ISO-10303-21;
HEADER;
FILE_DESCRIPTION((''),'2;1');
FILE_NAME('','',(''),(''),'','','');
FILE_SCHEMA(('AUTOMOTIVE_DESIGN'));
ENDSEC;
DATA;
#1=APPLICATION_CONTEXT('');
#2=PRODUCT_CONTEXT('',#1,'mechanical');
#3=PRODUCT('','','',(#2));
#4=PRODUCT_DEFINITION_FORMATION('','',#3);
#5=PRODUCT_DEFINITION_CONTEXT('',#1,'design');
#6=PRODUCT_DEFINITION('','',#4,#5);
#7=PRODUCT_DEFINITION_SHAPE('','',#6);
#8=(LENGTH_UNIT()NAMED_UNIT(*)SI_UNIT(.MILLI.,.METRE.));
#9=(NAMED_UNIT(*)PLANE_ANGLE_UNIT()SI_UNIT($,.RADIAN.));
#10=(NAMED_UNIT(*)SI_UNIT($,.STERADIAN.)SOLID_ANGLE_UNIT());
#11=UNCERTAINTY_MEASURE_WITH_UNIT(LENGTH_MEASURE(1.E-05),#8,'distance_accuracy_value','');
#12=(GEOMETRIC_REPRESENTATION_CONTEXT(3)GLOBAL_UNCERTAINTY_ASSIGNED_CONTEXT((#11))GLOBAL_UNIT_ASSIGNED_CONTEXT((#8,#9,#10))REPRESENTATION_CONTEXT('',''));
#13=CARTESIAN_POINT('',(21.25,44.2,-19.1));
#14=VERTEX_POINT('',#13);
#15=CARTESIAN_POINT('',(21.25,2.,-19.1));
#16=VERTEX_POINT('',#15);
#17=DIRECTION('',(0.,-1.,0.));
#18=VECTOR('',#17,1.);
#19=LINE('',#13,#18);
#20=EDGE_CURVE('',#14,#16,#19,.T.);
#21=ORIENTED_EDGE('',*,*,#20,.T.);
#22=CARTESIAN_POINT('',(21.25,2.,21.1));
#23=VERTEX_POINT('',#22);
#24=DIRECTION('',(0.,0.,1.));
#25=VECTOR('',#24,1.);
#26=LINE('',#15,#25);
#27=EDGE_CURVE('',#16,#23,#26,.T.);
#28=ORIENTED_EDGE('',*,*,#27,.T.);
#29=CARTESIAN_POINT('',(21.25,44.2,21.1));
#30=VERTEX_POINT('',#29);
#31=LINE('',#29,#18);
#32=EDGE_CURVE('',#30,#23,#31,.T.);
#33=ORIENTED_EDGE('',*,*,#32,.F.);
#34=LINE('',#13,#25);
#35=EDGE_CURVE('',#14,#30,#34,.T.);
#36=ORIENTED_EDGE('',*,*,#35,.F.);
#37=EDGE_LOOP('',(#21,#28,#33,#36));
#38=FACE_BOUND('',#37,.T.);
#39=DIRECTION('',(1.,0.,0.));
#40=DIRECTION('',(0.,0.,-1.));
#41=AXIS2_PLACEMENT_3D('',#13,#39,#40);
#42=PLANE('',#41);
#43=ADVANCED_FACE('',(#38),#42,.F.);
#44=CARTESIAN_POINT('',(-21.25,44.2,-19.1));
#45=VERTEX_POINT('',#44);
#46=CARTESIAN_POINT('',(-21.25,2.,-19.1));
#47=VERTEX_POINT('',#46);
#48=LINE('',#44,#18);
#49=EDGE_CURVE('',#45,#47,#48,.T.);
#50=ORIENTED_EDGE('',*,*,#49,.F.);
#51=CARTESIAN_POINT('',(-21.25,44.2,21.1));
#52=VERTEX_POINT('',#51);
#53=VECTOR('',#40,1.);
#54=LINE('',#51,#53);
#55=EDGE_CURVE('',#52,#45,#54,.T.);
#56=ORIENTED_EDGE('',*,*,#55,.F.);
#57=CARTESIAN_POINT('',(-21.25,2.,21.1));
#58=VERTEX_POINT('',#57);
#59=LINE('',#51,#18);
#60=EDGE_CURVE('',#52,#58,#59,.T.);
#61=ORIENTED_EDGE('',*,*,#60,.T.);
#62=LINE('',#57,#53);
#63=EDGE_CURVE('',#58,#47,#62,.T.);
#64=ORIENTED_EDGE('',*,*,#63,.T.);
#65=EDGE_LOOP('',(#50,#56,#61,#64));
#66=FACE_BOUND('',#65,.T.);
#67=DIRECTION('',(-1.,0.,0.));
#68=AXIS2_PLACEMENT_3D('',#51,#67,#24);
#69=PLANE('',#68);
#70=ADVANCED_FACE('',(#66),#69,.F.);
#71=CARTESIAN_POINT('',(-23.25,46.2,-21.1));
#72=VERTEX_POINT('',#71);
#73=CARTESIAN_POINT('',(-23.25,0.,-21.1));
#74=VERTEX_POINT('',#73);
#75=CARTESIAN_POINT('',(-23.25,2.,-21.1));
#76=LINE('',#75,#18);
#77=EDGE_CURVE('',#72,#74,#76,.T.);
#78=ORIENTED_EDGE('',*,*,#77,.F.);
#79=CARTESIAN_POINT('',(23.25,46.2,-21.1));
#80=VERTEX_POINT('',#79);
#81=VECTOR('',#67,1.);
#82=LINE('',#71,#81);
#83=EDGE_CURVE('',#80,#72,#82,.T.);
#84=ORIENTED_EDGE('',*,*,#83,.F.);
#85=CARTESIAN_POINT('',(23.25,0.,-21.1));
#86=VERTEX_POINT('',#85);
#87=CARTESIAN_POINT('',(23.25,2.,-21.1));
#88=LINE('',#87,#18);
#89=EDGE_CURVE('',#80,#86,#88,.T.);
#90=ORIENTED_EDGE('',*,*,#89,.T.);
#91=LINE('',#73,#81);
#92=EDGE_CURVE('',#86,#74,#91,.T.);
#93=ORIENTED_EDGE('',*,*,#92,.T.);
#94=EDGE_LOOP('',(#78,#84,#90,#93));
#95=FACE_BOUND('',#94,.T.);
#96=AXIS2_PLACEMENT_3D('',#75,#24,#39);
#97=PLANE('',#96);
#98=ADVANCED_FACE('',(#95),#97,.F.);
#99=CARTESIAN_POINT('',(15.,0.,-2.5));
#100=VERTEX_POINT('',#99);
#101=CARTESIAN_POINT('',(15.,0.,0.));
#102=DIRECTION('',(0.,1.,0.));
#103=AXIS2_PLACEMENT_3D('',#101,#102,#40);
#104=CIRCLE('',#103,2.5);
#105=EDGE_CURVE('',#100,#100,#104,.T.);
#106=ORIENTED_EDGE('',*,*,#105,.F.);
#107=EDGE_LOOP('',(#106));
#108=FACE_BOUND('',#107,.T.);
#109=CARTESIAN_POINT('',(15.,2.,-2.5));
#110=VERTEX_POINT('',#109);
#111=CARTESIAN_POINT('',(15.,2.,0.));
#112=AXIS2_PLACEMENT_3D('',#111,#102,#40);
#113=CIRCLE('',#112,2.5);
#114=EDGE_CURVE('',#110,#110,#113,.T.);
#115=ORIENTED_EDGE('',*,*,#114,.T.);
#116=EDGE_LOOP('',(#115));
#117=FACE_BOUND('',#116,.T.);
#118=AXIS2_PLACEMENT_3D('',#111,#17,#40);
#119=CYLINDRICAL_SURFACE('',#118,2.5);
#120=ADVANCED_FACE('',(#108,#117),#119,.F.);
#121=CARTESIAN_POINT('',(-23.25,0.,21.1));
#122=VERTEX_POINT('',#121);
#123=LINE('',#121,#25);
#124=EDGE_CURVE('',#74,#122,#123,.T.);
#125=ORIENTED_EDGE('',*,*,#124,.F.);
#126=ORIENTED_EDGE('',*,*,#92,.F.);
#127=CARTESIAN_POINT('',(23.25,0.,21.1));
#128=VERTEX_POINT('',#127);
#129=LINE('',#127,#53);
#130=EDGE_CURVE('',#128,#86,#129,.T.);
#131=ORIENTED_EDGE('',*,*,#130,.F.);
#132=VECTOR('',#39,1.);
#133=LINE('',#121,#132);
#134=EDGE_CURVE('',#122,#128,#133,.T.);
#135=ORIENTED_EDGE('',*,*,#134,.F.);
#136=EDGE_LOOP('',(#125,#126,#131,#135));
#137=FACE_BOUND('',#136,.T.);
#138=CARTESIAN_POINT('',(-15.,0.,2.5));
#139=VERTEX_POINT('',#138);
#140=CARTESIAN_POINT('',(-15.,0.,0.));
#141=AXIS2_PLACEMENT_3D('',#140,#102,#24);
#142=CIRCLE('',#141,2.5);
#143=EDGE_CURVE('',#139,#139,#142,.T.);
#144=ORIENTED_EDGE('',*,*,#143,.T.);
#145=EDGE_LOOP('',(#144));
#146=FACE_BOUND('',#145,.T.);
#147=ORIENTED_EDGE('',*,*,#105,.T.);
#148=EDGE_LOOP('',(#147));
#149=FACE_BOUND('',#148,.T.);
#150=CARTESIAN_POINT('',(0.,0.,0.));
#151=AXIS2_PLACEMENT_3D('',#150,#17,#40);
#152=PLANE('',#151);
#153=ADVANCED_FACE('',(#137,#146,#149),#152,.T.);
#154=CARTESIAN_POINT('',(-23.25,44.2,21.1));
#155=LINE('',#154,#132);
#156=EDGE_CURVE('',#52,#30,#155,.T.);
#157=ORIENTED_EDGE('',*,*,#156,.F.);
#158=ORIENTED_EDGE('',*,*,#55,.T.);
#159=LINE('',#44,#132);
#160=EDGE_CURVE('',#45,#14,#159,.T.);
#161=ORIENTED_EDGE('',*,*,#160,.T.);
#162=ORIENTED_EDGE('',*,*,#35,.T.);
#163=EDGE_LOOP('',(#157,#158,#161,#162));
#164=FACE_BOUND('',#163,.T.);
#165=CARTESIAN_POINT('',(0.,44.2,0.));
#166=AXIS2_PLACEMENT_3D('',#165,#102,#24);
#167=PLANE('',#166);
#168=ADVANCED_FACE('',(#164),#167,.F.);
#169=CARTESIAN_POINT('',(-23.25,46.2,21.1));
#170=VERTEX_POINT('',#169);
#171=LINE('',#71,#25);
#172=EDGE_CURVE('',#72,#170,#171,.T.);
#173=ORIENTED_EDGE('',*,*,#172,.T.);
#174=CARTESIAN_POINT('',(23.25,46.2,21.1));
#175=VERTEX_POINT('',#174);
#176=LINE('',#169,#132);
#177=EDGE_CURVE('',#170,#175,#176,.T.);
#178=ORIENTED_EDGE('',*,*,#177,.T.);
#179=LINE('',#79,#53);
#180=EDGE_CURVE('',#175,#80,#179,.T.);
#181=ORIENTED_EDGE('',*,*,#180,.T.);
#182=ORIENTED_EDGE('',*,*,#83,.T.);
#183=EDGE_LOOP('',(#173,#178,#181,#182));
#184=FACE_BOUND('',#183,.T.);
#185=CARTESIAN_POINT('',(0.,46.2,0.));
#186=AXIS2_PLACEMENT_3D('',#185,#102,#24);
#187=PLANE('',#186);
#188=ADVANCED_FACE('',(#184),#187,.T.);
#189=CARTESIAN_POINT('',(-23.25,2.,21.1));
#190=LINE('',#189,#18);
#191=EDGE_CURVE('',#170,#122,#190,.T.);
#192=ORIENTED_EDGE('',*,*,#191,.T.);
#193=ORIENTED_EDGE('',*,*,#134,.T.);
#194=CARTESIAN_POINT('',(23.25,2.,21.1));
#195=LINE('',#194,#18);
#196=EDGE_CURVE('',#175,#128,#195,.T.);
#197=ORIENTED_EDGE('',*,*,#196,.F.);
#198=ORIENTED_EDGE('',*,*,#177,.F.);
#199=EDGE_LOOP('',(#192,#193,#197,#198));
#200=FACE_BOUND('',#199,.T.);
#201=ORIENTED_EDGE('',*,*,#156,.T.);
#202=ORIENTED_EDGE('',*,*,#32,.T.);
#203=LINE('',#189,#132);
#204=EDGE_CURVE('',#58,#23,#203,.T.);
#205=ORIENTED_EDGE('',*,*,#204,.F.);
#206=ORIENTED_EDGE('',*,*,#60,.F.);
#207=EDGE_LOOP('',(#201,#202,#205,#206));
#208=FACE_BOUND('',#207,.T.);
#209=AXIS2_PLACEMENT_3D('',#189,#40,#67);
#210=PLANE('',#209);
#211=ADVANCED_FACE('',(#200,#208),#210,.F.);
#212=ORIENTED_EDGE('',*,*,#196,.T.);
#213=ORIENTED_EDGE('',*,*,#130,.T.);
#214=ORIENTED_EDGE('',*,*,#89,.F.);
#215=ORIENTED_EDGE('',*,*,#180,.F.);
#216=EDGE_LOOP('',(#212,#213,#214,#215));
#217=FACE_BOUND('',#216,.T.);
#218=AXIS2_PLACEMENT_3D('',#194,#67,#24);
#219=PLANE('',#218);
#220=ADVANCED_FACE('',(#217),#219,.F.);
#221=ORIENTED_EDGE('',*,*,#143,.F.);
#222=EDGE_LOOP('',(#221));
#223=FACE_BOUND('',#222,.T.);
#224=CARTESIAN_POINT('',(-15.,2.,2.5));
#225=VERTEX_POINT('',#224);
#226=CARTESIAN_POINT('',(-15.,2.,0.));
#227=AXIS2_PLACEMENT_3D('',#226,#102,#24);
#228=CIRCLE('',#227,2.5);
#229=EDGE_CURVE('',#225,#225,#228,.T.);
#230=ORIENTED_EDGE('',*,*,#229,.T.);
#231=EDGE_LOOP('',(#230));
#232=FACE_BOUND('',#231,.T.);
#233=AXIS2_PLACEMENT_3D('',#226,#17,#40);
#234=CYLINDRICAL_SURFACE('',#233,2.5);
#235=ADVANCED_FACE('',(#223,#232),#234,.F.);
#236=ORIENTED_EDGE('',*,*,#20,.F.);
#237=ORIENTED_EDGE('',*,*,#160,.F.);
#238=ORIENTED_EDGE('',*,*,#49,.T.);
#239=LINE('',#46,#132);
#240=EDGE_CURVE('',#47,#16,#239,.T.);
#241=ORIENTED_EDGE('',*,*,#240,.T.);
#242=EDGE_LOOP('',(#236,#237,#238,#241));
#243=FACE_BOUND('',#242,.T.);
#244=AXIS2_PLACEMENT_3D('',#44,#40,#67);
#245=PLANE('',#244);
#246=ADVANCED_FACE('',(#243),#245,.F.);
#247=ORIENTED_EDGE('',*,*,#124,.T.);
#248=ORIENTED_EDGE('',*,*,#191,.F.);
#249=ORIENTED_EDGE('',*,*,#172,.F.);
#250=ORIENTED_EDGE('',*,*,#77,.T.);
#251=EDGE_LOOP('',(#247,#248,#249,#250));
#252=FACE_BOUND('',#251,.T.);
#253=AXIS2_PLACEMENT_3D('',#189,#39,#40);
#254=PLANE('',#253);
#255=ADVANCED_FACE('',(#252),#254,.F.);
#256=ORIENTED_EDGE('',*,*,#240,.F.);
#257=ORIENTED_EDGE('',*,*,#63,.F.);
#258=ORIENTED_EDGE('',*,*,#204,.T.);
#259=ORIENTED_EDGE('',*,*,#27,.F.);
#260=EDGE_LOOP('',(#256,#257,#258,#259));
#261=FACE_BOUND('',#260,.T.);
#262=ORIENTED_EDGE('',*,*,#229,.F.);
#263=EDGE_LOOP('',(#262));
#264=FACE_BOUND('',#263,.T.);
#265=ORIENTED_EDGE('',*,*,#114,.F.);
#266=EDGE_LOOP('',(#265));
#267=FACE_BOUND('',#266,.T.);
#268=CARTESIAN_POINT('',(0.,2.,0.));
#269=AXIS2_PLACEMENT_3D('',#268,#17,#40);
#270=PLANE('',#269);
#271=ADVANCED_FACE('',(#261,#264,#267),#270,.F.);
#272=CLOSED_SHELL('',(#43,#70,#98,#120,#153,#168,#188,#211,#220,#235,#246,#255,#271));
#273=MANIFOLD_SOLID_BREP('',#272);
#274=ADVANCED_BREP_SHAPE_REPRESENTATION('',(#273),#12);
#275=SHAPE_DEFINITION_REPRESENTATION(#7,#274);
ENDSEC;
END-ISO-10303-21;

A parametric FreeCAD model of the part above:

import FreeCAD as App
import Part
import Sketcher

V = App.Vector

doc = App.newDocument("Part")
body = doc.addObject("PartDesign::Body", "Body")

sketch1 = body.newObject("Sketcher::SketchObject", "Sketch")
sketch1.AttachmentSupport = (doc.getObject("XZ_Plane"), [""])
sketch1.MapMode = "FlatFace"
sketch1.addGeometry([
    Part.LineSegment(V(-23.2, -21.1, 0), V(-23.2, 21.1, 0)),
    Part.LineSegment(V(-23.2, 21.1, 0), V(23.2, 21.1, 0)),
    Part.LineSegment(V(23.2, 21.1, 0), V(23.2, -21.1, 0)),
    Part.LineSegment(V(23.2, -21.1, 0), V(-23.2, -21.1, 0)),
    Part.Circle(V(-15, 0, 0), V(0, 0, 1), 2.5),
    Part.Circle(V(15, 0, 0), V(0, 0, 1), 2.5),
], False)
sketch1.addConstraint([
    Sketcher.Constraint("Coincident", 0, 2, 1, 1),
    Sketcher.Constraint("Coincident", 1, 2, 2, 1),
    Sketcher.Constraint("Coincident", 2, 2, 3, 1),
    Sketcher.Constraint("Coincident", 3, 2, 0, 1),
    Sketcher.Constraint("Vertical", 0),
    Sketcher.Constraint("Horizontal", 1),
    Sketcher.Constraint("Vertical", 2),
    Sketcher.Constraint("Horizontal", 3),
    Sketcher.Constraint("Equal", 4, 5),
    Sketcher.Constraint("Symmetric", 4, 3, 5, 3, -1, 1),
    Sketcher.Constraint("Symmetric", 0, 2, 2, 2, -1, 1),
    Sketcher.Constraint("PointOnObject", 4, 3, -1),
    Sketcher.Constraint("Diameter", 4, 5.0),
    Sketcher.Constraint("DistanceX", 1, 1, 1, 2, 46.5),
    Sketcher.Constraint("DistanceY", 0, 1, 0, 2, 42.2),
    Sketcher.Constraint("DistanceX", 4, 3, -1, 1, 15.0),
])
pad1 = body.newObject("PartDesign::Pad", "Pad")
pad1.Profile = sketch1
pad1.Length = 2
pad1.Reversed = True

sketch2 = body.newObject("Sketcher::SketchObject", "Sketch001")
sketch2.AttachmentSupport = (doc.getObject("XZ_Plane"), [""])
sketch2.MapMode = "FlatFace"
sketch2.AttachmentOffset = App.Placement(V(0, 0, -2), App.Rotation())
sketch2.addGeometry([
    Part.LineSegment(V(-23.2, 21.1, 0), V(-21.2, 21.1, 0)),
    Part.LineSegment(V(-21.2, 21.1, 0), V(-21.2, -19.1, 0)),
    Part.LineSegment(V(-21.2, -19.1, 0), V(21.2, -19.1, 0)),
    Part.LineSegment(V(21.2, -19.1, 0), V(21.2, 21.1, 0)),
    Part.LineSegment(V(21.2, 21.1, 0), V(23.2, 21.1, 0)),
    Part.LineSegment(V(23.2, 21.1, 0), V(23.2, -21.1, 0)),
    Part.LineSegment(V(23.2, -21.1, 0), V(-23.2, -21.1, 0)),
    Part.LineSegment(V(-23.2, -21.1, 0), V(-23.2, 21.1, 0)),
], False)
sketch2.addConstraint([
    Sketcher.Constraint("Coincident", 0, 2, 1, 1),
    Sketcher.Constraint("Coincident", 1, 2, 2, 1),
    Sketcher.Constraint("Coincident", 2, 2, 3, 1),
    Sketcher.Constraint("Coincident", 3, 2, 4, 1),
    Sketcher.Constraint("Coincident", 4, 2, 5, 1),
    Sketcher.Constraint("Coincident", 5, 2, 6, 1),
    Sketcher.Constraint("Coincident", 6, 2, 7, 1),
    Sketcher.Constraint("Coincident", 7, 2, 0, 1),
    Sketcher.Constraint("Horizontal", 0),
    Sketcher.Constraint("Vertical", 1),
    Sketcher.Constraint("Horizontal", 2),
    Sketcher.Constraint("Vertical", 3),
    Sketcher.Constraint("Horizontal", 4),
    Sketcher.Constraint("Vertical", 5),
    Sketcher.Constraint("Horizontal", 6),
    Sketcher.Constraint("Vertical", 7),
    Sketcher.Constraint("Symmetric", 4, 2, 6, 2, -1, 1),
    Sketcher.Constraint("Symmetric", 0, 2, 3, 2, -2),
    Sketcher.Constraint("DistanceX", 0, 1, 0, 2, 2.0),
    Sketcher.Constraint("DistanceX", 2, 1, 2, 2, 42.5),
    Sketcher.Constraint("DistanceY", 1, 2, 1, 1, 40.2),
    Sketcher.Constraint("DistanceY", 5, 2, 5, 1, 42.2),
])
pad2 = body.newObject("PartDesign::Pad", "Pad001")
pad2.Profile = sketch2
pad2.Length = 42.2
pad2.Reversed = True

sketch3 = body.newObject("Sketcher::SketchObject", "Sketch002")
sketch3.AttachmentSupport = (doc.getObject("XZ_Plane"), [""])
sketch3.MapMode = "FlatFace"
sketch3.AttachmentOffset = App.Placement(V(0, 0, -44.2), App.Rotation())
sketch3.addGeometry([
    Part.LineSegment(V(-23, -21, 0), V(-23, 21, 0)),
    Part.LineSegment(V(-23, 21, 0), V(23, 21, 0)),
    Part.LineSegment(V(23, 21, 0), V(23, -21, 0)),
    Part.LineSegment(V(23, -21, 0), V(-23, -21, 0)),
], False)
sketch3.addConstraint([
    Sketcher.Constraint("Coincident", 0, 2, 1, 1),
    Sketcher.Constraint("Coincident", 1, 2, 2, 1),
    Sketcher.Constraint("Coincident", 2, 2, 3, 1),
    Sketcher.Constraint("Coincident", 3, 2, 0, 1),
    Sketcher.Constraint("Vertical", 0),
    Sketcher.Constraint("Horizontal", 1),
    Sketcher.Constraint("Vertical", 2),
    Sketcher.Constraint("Horizontal", 3),
    Sketcher.Constraint("Symmetric", 0, 2, 2, 2, -1, 1),
    Sketcher.Constraint("DistanceX", 1, 1, 1, 2, 46.5),
    Sketcher.Constraint("DistanceY", 0, 1, 0, 2, 42.2),
])
pad3 = body.newObject("PartDesign::Pad", "Pad002")
pad3.Profile = sketch3
pad3.Length = 2
pad3.Reversed = True

doc.recompute()
